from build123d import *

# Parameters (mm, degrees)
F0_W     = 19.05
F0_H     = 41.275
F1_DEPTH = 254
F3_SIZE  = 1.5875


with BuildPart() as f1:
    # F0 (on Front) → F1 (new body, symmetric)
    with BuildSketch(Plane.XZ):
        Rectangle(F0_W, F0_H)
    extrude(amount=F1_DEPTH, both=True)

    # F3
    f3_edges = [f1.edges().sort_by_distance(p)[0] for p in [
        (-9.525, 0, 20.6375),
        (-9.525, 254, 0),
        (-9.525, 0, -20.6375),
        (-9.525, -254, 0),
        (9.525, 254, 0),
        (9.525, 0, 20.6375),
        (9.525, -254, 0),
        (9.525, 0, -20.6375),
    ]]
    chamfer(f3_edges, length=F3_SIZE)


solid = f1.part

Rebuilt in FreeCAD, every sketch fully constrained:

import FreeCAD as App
import Part
import Sketcher
from FreeCAD import Vector
Q = App.Units.Quantity


def edges_at(feature, points):
    """Names of the edges that pass closest to the given points."""
    edges = feature.Shape.Edges
    near = lambda p: min(range(len(edges)), key=lambda i: edges[i].distToShape(Part.Vertex(*p))[0])
    return sorted({f"Edge{near(p) + 1}" for p in points})

doc = App.newDocument("Part")
body = doc.addObject("PartDesign::Body", "Body")

# Sketch on XZ plane
sketch1 = body.newObject("Sketcher::SketchObject", "Sketch")
sketch1.AttachmentSupport = (doc.getObject("XZ_Plane"), [""])
sketch1.MapMode = "FlatFace"
sketch1.addGeometry(Part.LineSegment(Vector(-10, 21, 0), Vector(-10, -21, 0)), False)
sketch1.addGeometry(Part.LineSegment(Vector(-10, -21, 0), Vector(10, -21, 0)), False)
sketch1.addGeometry(Part.LineSegment(Vector(10, -21, 0), Vector(10, 21, 0)), False)
sketch1.addGeometry(Part.LineSegment(Vector(10, 21, 0), Vector(-10, 21, 0)), False)
sketch1.addConstraint(Sketcher.Constraint("Coincident", 0, 2, 1, 1))
sketch1.addConstraint(Sketcher.Constraint("Coincident", 1, 2, 2, 1))
sketch1.addConstraint(Sketcher.Constraint("Coincident", 2, 2, 3, 1))
sketch1.addConstraint(Sketcher.Constraint("Coincident", 3, 2, 0, 1))
sketch1.addConstraint(Sketcher.Constraint("Vertical", 0))
sketch1.addConstraint(Sketcher.Constraint("Horizontal", 1))
sketch1.addConstraint(Sketcher.Constraint("Vertical", 2))
sketch1.addConstraint(Sketcher.Constraint("Horizontal", 3))
sketch1.addConstraint(Sketcher.Constraint("Symmetric", 0, 2, 2, 2, -1, 1))
sketch1.addConstraint(Sketcher.Constraint("DistanceX", 1, 1, 1, 2, Q("0.75 in")))
sketch1.addConstraint(Sketcher.Constraint("DistanceY", 0, 2, 0, 1, Q("1.625 in")))
pad1 = body.newObject("PartDesign::Pad", "Pad")
pad1.Profile = sketch1
pad1.Length = Q("20 in")
pad1.Midplane = True
doc.recompute()

chamfer = body.newObject("PartDesign::Chamfer", "Chamfer")
chamfer.Base = (pad1, edges_at(pad1, [
    (-9.525, 0, 20.637),
    (-9.525, 254, 0),
    (-9.525, 0, -20.637),
    (-9.525, -254, 0),
    (9.525, 254, 0),
    (9.525, 0, 20.637),
    (9.525, -254, 0),
    (9.525, 0, -20.637),
]))
chamfer.Size = Q("0.0625 in")

doc.recompute()
